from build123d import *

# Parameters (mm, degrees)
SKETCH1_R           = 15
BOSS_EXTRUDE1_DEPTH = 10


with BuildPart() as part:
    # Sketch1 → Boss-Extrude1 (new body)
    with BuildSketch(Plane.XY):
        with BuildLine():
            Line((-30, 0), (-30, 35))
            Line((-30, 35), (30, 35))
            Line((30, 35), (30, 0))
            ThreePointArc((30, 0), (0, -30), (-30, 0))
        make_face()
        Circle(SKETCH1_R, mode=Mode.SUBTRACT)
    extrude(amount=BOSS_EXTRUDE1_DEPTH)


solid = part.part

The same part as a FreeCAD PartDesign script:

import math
import FreeCAD as App
import Part
import Sketcher

doc = App.newDocument("Part")
body = doc.addObject("PartDesign::Body", "Body")

# Sketch on XY plane
sketch1 = body.newObject("Sketcher::SketchObject", "Sketch")
sketch1.AttachmentSupport = (doc.getObject("XY_Plane"), [""])
sketch1.MapMode = "FlatFace"
sketch1.addGeometry([
    Part.LineSegment(App.Vector(-30, 35, 0), App.Vector(-30, 0, 0)),  # 0
    Part.ArcOfCircle(Part.Circle(App.Vector(0, 0, 0), App.Vector(0, 0, 1), 30), math.radians(180), math.radians(360)),  # 1
    Part.LineSegment(App.Vector(30, 0, 0), App.Vector(30, 35, 0)),  # 2
    Part.LineSegment(App.Vector(30, 35, 0), App.Vector(-30, 35, 0)),  # 3
    Part.Circle(App.Vector(0, 0, 0), App.Vector(0, 0, 1), 15),  # 4
], False)
sketch1.addConstraint([
    Sketcher.Constraint("Tangent", 0, 2, 1, 1),
    Sketcher.Constraint("Tangent", 1, 2, 2, 1),
    Sketcher.Constraint("Coincident", 2, 2, 3, 1),
    Sketcher.Constraint("Coincident", 3, 2, 0, 1),
    Sketcher.Constraint("Vertical", 0),
    Sketcher.Constraint("Vertical", 2),
    Sketcher.Constraint("Horizontal", 3),
    Sketcher.Constraint("Coincident", 1, 3, -1, 1),
    Sketcher.Constraint("Coincident", 4, 3, -1, 1),
    Sketcher.Constraint("Diameter", 4, 30.0),
    Sketcher.Constraint("Radius", 1, 30.0),
    Sketcher.Constraint("DistanceY", 0, 2, 0, 1, 35.0),
])
pad1 = body.newObject("PartDesign::Pad", "Pad")
pad1.Profile = sketch1
pad1.Length = 10

doc.recompute()
